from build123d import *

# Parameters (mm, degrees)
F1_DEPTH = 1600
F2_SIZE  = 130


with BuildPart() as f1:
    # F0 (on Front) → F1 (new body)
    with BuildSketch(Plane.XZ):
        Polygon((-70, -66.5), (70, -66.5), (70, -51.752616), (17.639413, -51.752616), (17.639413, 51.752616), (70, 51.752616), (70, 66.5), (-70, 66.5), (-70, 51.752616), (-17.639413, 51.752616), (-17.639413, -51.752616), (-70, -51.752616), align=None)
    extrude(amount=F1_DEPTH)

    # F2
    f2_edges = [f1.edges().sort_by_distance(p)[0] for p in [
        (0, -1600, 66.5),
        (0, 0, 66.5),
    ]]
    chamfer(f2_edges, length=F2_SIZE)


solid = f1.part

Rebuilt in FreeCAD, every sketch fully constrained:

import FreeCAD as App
import Part
import Sketcher


def edges_at(feature, points):
    """Names of the edges that pass closest to the given points."""
    edges = feature.Shape.Edges
    near = lambda p: min(range(len(edges)), key=lambda i: edges[i].distToShape(Part.Vertex(*p))[0])
    return sorted({f"Edge{near(p) + 1}" for p in points})


def add_polygon(sketch, points):
    """Adds a closed chain of lines whose ends are joined by coincident constraints."""
    first, n = sketch.GeometryCount, len(points)
    for a, b in zip(points, points[1:] + points[:1]):
        sketch.addGeometry(Part.LineSegment(App.Vector(*a, 0), App.Vector(*b, 0)), False)
    for i in range(n):
        sketch.addConstraint(Sketcher.Constraint("Coincident", first + i, 2, first + (i + 1) % n, 1))

doc = App.newDocument("Part")
body = doc.addObject("PartDesign::Body", "Body")

sketch1 = body.newObject("Sketcher::SketchObject", "Sketch")
sketch1.AttachmentSupport = (doc.getObject("XZ_Plane"), [""])
sketch1.MapMode = "FlatFace"
add_polygon(sketch1, [(-70, -66), (70, -66), (70, -52), (18, -52), (18, 52), (70, 52), (70, 66), (-70, 66), (-70, 52), (-18, 52), (-18, -52), (-70, -52)])
sketch1.addConstraint(Sketcher.Constraint("Horizontal", 0))
sketch1.addConstraint(Sketcher.Constraint("Vertical", 1))
sketch1.addConstraint(Sketcher.Constraint("Horizontal", 2))
sketch1.addConstraint(Sketcher.Constraint("Vertical", 3))
sketch1.addConstraint(Sketcher.Constraint("Horizontal", 4))
sketch1.addConstraint(Sketcher.Constraint("Vertical", 5))
sketch1.addConstraint(Sketcher.Constraint("Horizontal", 6))
sketch1.addConstraint(Sketcher.Constraint("Vertical", 7))
sketch1.addConstraint(Sketcher.Constraint("Horizontal", 8))
sketch1.addConstraint(Sketcher.Constraint("Vertical", 9))
sketch1.addConstraint(Sketcher.Constraint("Horizontal", 10))
sketch1.addConstraint(Sketcher.Constraint("Vertical", 11))
sketch1.addConstraint(Sketcher.Constraint("Symmetric", 0, 2, 6, 2, -1, 1))
sketch1.addConstraint(Sketcher.Constraint("Symmetric", 2, 2, 8, 2, -1, 1))
sketch1.addConstraint(Sketcher.Constraint("Symmetric", 4, 2, 10, 2, -1, 1))
sketch1.addConstraint(Sketcher.Constraint("Symmetric", 4, 2, 7, 2, -2))
sketch1.addConstraint(Sketcher.Constraint("DistanceX", 0, 1, 0, 2, 140.0))
sketch1.addConstraint(Sketcher.Constraint("DistanceY", 0, 2, 5, 2, 133.0))
sketch1.addConstraint(Sketcher.Constraint("DistanceX", 2, 2, 2, 1, 52.360587))
sketch1.addConstraint(Sketcher.Constraint("DistanceY", 1, 1, 1, 2, 14.747384))
pad1 = body.newObject("PartDesign::Pad", "Pad")
pad1.Profile = sketch1
pad1.Length = 1600
doc.recompute()

chamfer = body.newObject("PartDesign::Chamfer", "Chamfer")
chamfer.Base = (pad1, edges_at(pad1, [(0, -1600, 66.5), (0, 0, 66.5)]))
chamfer.Size = 130

doc.recompute()
